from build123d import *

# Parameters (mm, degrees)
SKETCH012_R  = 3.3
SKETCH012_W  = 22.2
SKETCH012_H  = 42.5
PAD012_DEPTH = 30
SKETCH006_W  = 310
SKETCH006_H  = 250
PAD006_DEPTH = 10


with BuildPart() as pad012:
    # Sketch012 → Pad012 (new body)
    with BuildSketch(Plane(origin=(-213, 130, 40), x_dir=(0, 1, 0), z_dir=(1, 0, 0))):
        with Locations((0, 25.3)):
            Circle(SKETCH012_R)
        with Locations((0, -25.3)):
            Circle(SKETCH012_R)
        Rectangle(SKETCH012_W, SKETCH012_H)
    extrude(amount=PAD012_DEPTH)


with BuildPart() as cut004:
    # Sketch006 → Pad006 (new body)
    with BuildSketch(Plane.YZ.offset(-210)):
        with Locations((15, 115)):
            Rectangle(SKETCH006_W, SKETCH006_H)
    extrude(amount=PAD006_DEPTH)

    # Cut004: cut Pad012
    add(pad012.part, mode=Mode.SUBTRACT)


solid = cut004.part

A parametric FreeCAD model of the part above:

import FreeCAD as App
import Part
import Sketcher
from FreeCAD import Vector
Q = App.Units.Quantity

doc = App.newDocument("Part")
body = doc.addObject("PartDesign::Body", "Body")
body.AllowCompound = True

# Sketch on YZ plane
sketch1 = body.newObject("Sketcher::SketchObject", "Sketch")
sketch1.AttachmentSupport = (doc.getObject("YZ_Plane"), [""])
sketch1.MapMode = "FlatFace"
sketch1.AttachmentOffset = App.Placement(Vector(0, 0, -213), App.Rotation())
sketch1.addGeometry(Part.Circle(Vector(130, 65.3, 0), Vector(0, 0, 1), 3.3), False)
sketch1.addGeometry(Part.Circle(Vector(130, 14.7, 0), Vector(0, 0, 1), 3.3), False)
sketch1.addGeometry(Part.LineSegment(Vector(118.9, 61.2, 0), Vector(118.9, 18.8, 0)), False)
sketch1.addGeometry(Part.LineSegment(Vector(118.9, 18.8, 0), Vector(141.1, 18.8, 0)), False)
sketch1.addGeometry(Part.LineSegment(Vector(141.1, 18.8, 0), Vector(141.1, 61.2, 0)), False)
sketch1.addGeometry(Part.LineSegment(Vector(141.1, 61.2, 0), Vector(118.9, 61.2, 0)), False)
sketch1.addConstraint(Sketcher.Constraint("Coincident", 2, 2, 3, 1))
sketch1.addConstraint(Sketcher.Constraint("Coincident", 3, 2, 4, 1))
sketch1.addConstraint(Sketcher.Constraint("Coincident", 4, 2, 5, 1))
sketch1.addConstraint(Sketcher.Constraint("Coincident", 5, 2, 2, 1))
sketch1.addConstraint(Sketcher.Constraint("Vertical", 2))
sketch1.addConstraint(Sketcher.Constraint("Horizontal", 3))
sketch1.addConstraint(Sketcher.Constraint("Vertical", 4))
sketch1.addConstraint(Sketcher.Constraint("Horizontal", 5))
sketch1.addConstraint(Sketcher.Constraint("Equal", 0, 1))
sketch1.addConstraint(Sketcher.Constraint("Vertical", 0, 3, 1, 3))
sketch1.addConstraint(Sketcher.Constraint("Diameter", 0, Q("6.6 mm")))
sketch1.addConstraint(Sketcher.Constraint("DistanceX", 3, 1, 3, 2, Q("22.2 mm")))
sketch1.addConstraint(Sketcher.Constraint("DistanceY", 2, 2, 2, 1, Q("42.5 mm")))
sketch1.addConstraint(Sketcher.Constraint("DistanceX", -1, 1, 0, 3, Q("130 mm")))
sketch1.addConstraint(Sketcher.Constraint("DistanceY", -1, 1, 0, 3, Q("65.3 mm")))
sketch1.addConstraint(Sketcher.Constraint("DistanceY", -1, 1, 1, 3, Q("14.7 mm")))
sketch1.addConstraint(Sketcher.Constraint("DistanceX", -1, 1, 2, 2, Q("118.9 mm")))
sketch1.addConstraint(Sketcher.Constraint("DistanceY", -1, 1, 2, 2, Q("18.75 mm")))
pad1 = body.newObject("PartDesign::Pad", "Pad")
pad1.Profile = sketch1
pad1.Length = 30
body2 = doc.addObject("PartDesign::Body", "Body001")

# Sketch on YZ plane
sketch2 = body2.newObject("Sketcher::SketchObject", "Sketch001")
sketch2.AttachmentSupport = (doc.getObject("YZ_Plane001"), [""])
sketch2.MapMode = "FlatFace"
sketch2.AttachmentOffset = App.Placement(Vector(0, 0, -210), App.Rotation())
sketch2.addGeometry(Part.LineSegment(Vector(-140, 240, 0), Vector(-140, -10, 0)), False)
sketch2.addGeometry(Part.LineSegment(Vector(-140, -10, 0), Vector(170, -10, 0)), False)
sketch2.addGeometry(Part.LineSegment(Vector(170, -10, 0), Vector(170, 240, 0)), False)
sketch2.addGeometry(Part.LineSegment(Vector(170, 240, 0), Vector(-140, 240, 0)), False)
sketch2.addConstraint(Sketcher.Constraint("Coincident", 0, 2, 1, 1))
sketch2.addConstraint(Sketcher.Constraint("Coincident", 1, 2, 2, 1))
sketch2.addConstraint(Sketcher.Constraint("Coincident", 2, 2, 3, 1))
sketch2.addConstraint(Sketcher.Constraint("Coincident", 3, 2, 0, 1))
sketch2.addConstraint(Sketcher.Constraint("Vertical", 0))
sketch2.addConstraint(Sketcher.Constraint("Horizontal", 1))
sketch2.addConstraint(Sketcher.Constraint("Vertical", 2))
sketch2.addConstraint(Sketcher.Constraint("Horizontal", 3))
sketch2.addConstraint(Sketcher.Constraint("DistanceX", 1, 1, 1, 2, Q("310 mm")))
sketch2.addConstraint(Sketcher.Constraint("DistanceY", 0, 2, 0, 1, Q("250 mm")))
sketch2.addConstraint(Sketcher.Constraint("DistanceX", 0, 2, -1, 1, Q("140 mm")))
sketch2.addConstraint(Sketcher.Constraint("DistanceY", 0, 2, -1, 1, Q("10 mm")))
pad2 = body2.newObject("PartDesign::Pad", "Pad001")
pad2.Profile = sketch2
pad2.Length = 10
doc.recompute()

boolean = body2.newObject("PartDesign::Boolean", "Boolean")
boolean.Type = "Cut"
boolean.addObjects([body])

doc.recompute()
